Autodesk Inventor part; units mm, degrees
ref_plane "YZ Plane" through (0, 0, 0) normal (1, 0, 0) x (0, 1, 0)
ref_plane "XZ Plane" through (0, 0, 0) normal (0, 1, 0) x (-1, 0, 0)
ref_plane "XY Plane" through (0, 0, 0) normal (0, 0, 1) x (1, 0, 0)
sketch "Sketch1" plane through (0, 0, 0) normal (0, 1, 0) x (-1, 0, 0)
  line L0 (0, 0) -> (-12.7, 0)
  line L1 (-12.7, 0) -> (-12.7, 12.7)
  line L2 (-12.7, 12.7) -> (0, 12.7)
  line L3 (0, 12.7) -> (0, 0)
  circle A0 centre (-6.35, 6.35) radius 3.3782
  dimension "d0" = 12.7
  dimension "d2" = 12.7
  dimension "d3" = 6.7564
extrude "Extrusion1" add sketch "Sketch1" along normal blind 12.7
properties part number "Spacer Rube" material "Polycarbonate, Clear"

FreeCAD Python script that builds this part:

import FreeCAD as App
import Part
import Sketcher
from FreeCAD import Vector
Q = App.Units.Quantity

doc = App.newDocument("Part")
body = doc.addObject("PartDesign::Body", "Body")

# Sketch on XZ plane
sketch1 = body.newObject("Sketcher::SketchObject", "Sketch")
sketch1.AttachmentSupport = (doc.getObject("XZ_Plane"), [""])
sketch1.MapMode = "FlatFace"
sketch1.addGeometry([
    Part.LineSegment(Vector(12.7, 0, 0), Vector(0, 0, 0)),  # 0
    Part.LineSegment(Vector(0, 0, 0), Vector(0, 12.7, 0)),  # 1
    Part.LineSegment(Vector(0, 12.7, 0), Vector(12.7, 12.7, 0)),  # 2
    Part.LineSegment(Vector(12.7, 12.7, 0), Vector(12.7, 0, 0)),  # 3
    Part.Circle(Vector(6.35, 6.35, 0), Vector(0, 0, 1), 3.3782),  # 4
], False)
sketch1.addConstraint([
    Sketcher.Constraint("Coincident", 0, 2, 1, 1),
    Sketcher.Constraint("Coincident", 1, 2, 2, 1),
    Sketcher.Constraint("Coincident", 2, 2, 3, 1),
    Sketcher.Constraint("Coincident", 3, 2, 0, 1),
    Sketcher.Constraint("Horizontal", 0),
    Sketcher.Constraint("Vertical", 1),
    Sketcher.Constraint("Horizontal", 2),
    Sketcher.Constraint("Vertical", 3),
    Sketcher.Constraint("Coincident", 0, 2, -1, 1),
    Sketcher.Constraint("Equal", 2, 1),
    Sketcher.Constraint("Diameter", 4, Q("0.266 in")),
    Sketcher.Constraint("DistanceX", 0, 2, 0, 1, Q("0.5 in")),
    Sketcher.Constraint("DistanceX", -1, 1, 4, 3, Q("0.25 in")),
    Sketcher.Constraint("DistanceY", -1, 1, 4, 3, Q("0.25 in")),
])
pad1 = body.newObject("PartDesign::Pad", "Pad")
pad1.Profile = sketch1
pad1.Length = Q("0.5 in")
pad1.Reversed = True

doc.recompute()
